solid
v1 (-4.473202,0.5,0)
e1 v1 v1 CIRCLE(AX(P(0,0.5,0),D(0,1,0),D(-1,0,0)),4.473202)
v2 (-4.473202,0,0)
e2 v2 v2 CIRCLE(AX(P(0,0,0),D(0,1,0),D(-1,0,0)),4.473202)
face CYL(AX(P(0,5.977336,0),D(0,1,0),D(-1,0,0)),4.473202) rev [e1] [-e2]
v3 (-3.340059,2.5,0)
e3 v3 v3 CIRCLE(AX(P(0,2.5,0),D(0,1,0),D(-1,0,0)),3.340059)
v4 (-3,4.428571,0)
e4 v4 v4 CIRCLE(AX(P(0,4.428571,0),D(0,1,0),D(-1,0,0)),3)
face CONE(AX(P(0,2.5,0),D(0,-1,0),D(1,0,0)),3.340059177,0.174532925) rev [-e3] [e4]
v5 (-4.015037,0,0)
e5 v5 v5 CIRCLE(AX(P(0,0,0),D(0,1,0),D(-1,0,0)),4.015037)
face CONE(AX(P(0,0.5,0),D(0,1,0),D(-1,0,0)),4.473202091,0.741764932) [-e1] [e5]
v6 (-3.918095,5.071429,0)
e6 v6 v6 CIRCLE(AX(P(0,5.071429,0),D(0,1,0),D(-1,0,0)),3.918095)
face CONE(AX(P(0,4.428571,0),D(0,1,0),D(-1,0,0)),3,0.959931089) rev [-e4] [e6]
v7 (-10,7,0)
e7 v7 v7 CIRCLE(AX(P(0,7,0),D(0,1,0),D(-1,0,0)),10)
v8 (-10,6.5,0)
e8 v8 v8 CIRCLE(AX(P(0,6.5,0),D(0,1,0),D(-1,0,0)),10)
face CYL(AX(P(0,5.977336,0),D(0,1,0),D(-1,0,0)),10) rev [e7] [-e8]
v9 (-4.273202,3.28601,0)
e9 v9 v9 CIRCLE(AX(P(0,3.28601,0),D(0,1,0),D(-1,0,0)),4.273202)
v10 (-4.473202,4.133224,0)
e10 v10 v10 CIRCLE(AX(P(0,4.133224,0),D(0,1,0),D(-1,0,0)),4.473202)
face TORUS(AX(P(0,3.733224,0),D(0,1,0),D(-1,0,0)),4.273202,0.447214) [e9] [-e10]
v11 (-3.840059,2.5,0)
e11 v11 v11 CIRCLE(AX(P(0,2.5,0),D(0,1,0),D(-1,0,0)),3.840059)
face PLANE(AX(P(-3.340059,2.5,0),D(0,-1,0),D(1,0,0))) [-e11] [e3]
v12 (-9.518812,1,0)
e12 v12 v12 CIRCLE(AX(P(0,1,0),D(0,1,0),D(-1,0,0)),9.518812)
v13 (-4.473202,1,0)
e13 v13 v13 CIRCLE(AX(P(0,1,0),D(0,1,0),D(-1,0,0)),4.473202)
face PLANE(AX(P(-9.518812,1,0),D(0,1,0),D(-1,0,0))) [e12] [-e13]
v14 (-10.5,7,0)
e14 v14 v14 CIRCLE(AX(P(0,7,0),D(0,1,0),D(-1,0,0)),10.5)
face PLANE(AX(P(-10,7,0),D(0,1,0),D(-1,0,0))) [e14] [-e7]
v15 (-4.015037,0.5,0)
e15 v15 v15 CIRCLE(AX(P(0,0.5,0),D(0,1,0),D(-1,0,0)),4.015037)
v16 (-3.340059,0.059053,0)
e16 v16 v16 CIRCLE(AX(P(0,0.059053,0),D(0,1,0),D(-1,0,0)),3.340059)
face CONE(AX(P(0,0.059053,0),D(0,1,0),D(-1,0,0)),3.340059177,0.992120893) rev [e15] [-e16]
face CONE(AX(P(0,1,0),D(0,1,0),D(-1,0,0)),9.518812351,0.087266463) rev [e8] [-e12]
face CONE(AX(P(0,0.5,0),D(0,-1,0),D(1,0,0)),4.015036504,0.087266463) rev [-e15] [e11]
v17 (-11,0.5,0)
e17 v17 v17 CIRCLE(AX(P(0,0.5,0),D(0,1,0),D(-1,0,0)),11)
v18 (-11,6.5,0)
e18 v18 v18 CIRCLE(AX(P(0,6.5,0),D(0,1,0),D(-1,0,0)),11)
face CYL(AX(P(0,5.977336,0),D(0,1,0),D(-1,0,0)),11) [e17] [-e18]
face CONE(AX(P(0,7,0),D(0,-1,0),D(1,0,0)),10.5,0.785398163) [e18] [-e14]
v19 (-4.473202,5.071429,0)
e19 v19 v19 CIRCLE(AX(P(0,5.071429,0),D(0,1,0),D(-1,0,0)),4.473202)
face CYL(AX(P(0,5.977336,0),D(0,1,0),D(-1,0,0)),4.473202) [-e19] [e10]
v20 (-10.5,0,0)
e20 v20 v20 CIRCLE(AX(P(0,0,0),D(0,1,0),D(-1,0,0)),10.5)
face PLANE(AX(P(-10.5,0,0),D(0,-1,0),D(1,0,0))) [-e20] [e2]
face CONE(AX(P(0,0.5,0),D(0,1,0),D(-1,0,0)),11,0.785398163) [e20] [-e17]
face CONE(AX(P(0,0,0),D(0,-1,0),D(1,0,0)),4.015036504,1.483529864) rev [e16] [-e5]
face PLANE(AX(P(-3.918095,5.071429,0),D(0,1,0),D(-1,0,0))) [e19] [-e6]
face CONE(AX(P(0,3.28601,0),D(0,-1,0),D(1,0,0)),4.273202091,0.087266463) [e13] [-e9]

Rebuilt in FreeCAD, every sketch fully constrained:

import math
import FreeCAD as App
import Part
import Sketcher

V = App.Vector
Q = App.Units.Quantity

doc = App.newDocument("Part")
body = doc.addObject("PartDesign::Body", "Body")

sketch1 = body.newObject("Sketcher::SketchObject", "Sketch")
sketch1.AttachmentSupport = (doc.getObject("XY_Plane"), [""])
sketch1.MapMode = "FlatFace"
sketch1.addGeometry([
    Part.LineSegment(V(-10.5, 0, 0), V(-4.47, 0, 0)),
    Part.LineSegment(V(-4.47, 0, 0), V(-4.47, 0.5, 0)),
    Part.LineSegment(V(-4.47, 0.5, 0), V(-4.02, 0, 0)),
    Part.LineSegment(V(-4.02, 0, 0), V(-3.34, 0.06, 0)),
    Part.LineSegment(V(-3.34, 0.06, 0), V(-4.02, 0.5, 0)),
    Part.LineSegment(V(-4.02, 0.5, 0), V(-3.84, 2.5, 0)),
    Part.LineSegment(V(-3.84, 2.5, 0), V(-3.34, 2.5, 0)),
    Part.LineSegment(V(-3.34, 2.5, 0), V(-3, 4.43, 0)),
    Part.LineSegment(V(-3, 4.43, 0), V(-3.92, 5.07, 0)),
    Part.LineSegment(V(-3.92, 5.07, 0), V(-4.47, 5.07, 0)),
    Part.LineSegment(V(-4.47, 5.07, 0), V(-4.47, 4.13, 0)),
    Part.ArcOfCircle(Part.Circle(V(-4.27, 3.73, 0), V(0, 0, 1), 0.45), math.radians(117), math.radians(270)),
    Part.LineSegment(V(-4.27, 3.29, 0), V(-4.47, 1, 0)),
    Part.LineSegment(V(-4.47, 1, 0), V(-9.52, 1, 0)),
    Part.LineSegment(V(-9.52, 1, 0), V(-10, 6.5, 0)),
    Part.LineSegment(V(-10, 6.5, 0), V(-10, 7, 0)),
    Part.LineSegment(V(-10, 7, 0), V(-10.5, 7, 0)),
    Part.LineSegment(V(-10.5, 7, 0), V(-11, 6.5, 0)),
    Part.LineSegment(V(-11, 6.5, 0), V(-11, 0.5, 0)),
    Part.LineSegment(V(-11, 0.5, 0), V(-10.5, 0, 0)),
], False)
sketch1.addConstraint([
    Sketcher.Constraint("Coincident", 0, 2, 1, 1),
    Sketcher.Constraint("Coincident", 1, 2, 2, 1),
    Sketcher.Constraint("Coincident", 2, 2, 3, 1),
    Sketcher.Constraint("Coincident", 3, 2, 4, 1),
    Sketcher.Constraint("Coincident", 4, 2, 5, 1),
    Sketcher.Constraint("Coincident", 5, 2, 6, 1),
    Sketcher.Constraint("Coincident", 6, 2, 7, 1),
    Sketcher.Constraint("Coincident", 7, 2, 8, 1),
    Sketcher.Constraint("Coincident", 8, 2, 9, 1),
    Sketcher.Constraint("Coincident", 9, 2, 10, 1),
    Sketcher.Constraint("Coincident", 10, 2, 11, 1),
    Sketcher.Constraint("Coincident", 11, 2, 12, 1),
    Sketcher.Constraint("Coincident", 12, 2, 13, 1),
    Sketcher.Constraint("Coincident", 13, 2, 14, 1),
    Sketcher.Constraint("Coincident", 14, 2, 15, 1),
    Sketcher.Constraint("Coincident", 15, 2, 16, 1),
    Sketcher.Constraint("Coincident", 16, 2, 17, 1),
    Sketcher.Constraint("Coincident", 17, 2, 18, 1),
    Sketcher.Constraint("Coincident", 18, 2, 19, 1),
    Sketcher.Constraint("Coincident", 19, 2, 0, 1),
    Sketcher.Constraint("Horizontal", 0),
    Sketcher.Constraint("Vertical", 1),
    Sketcher.Constraint("Horizontal", 6),
    Sketcher.Constraint("Horizontal", 9),
    Sketcher.Constraint("Vertical", 10),
    Sketcher.Constraint("Horizontal", 13),
    Sketcher.Constraint("Vertical", 15),
    Sketcher.Constraint("Horizontal", 16),
    Sketcher.Constraint("Vertical", 18),
    Sketcher.Constraint("PointOnObject", 0, 2, -1),
    Sketcher.Constraint("PointOnObject", 2, 2, -1),
    Sketcher.Constraint("Parallel", 5, 12),
    Sketcher.Constraint("Perpendicular", 3, 14),
    Sketcher.Constraint("Perpendicular", 17, 19),
    Sketcher.Constraint("Horizontal", 1, 2, 4, 2),
    Sketcher.Constraint("Horizontal", 14, 2, 17, 2),
    Sketcher.Constraint("Horizontal", 4, 2, 18, 2),
    Sketcher.Constraint("Vertical", 2, 2, 4, 2),
    Sketcher.Constraint("Vertical", 3, 2, 6, 2),
    Sketcher.Constraint("Vertical", 1, 2, 9, 2),
    Sketcher.Constraint("Vertical", 10, 2, 12, 2),
    Sketcher.Constraint("Vertical", 16, 2, 19, 2),
    Sketcher.Constraint("Equal", 6, 16),
    Sketcher.Constraint("Equal", 16, 1),
    Sketcher.Constraint("Equal", 1, 15),
    Sketcher.Constraint("DistanceY", 18, 2, 18, 1, 6.0),
    Sketcher.Constraint("Angle", 3, Q("5 deg")),
    Sketcher.Constraint("Angle", 5, Q("85 deg")),
    Sketcher.Constraint("Angle", 7, Q("80 deg")),
    Sketcher.Constraint("Angle", 8, Q("145 deg")),
    Sketcher.Constraint("DistanceX", 6, 1, 6, 2, 0.5),
    Sketcher.Constraint("DistanceX", 7, 2, -1, 1, 3.0),
    Sketcher.Constraint("DistanceY", -1, 1, 12, 2, 1.0),
    Sketcher.Constraint("DistanceX", 14, 2, -1, 1, 10.0),
    Sketcher.Constraint("Angle", 2, Q("-47.5 deg")),
    Sketcher.Constraint("DistanceY", 4, 2, 5, 2, 2.0),
    Sketcher.Constraint("DistanceX", 0, 2, 11, 3, 0.2),
    Sketcher.Constraint("DistanceY", 11, 3, 10, 2, 0.4),
    Sketcher.Constraint("DistanceX", 10, 2, 11, 2, 0.2),
    Sketcher.Constraint("DistanceX", 13, 2, 13, 1, 5.04561),
    Sketcher.Constraint("DistanceX", 9, 2, 9, 1, 0.555107),
])
revolution = body.newObject("PartDesign::Revolution", "Revolution")
revolution.Profile = sketch1
revolution.ReferenceAxis = (sketch1, ["V_Axis"])
revolution.Angle = 360

doc.recompute()
